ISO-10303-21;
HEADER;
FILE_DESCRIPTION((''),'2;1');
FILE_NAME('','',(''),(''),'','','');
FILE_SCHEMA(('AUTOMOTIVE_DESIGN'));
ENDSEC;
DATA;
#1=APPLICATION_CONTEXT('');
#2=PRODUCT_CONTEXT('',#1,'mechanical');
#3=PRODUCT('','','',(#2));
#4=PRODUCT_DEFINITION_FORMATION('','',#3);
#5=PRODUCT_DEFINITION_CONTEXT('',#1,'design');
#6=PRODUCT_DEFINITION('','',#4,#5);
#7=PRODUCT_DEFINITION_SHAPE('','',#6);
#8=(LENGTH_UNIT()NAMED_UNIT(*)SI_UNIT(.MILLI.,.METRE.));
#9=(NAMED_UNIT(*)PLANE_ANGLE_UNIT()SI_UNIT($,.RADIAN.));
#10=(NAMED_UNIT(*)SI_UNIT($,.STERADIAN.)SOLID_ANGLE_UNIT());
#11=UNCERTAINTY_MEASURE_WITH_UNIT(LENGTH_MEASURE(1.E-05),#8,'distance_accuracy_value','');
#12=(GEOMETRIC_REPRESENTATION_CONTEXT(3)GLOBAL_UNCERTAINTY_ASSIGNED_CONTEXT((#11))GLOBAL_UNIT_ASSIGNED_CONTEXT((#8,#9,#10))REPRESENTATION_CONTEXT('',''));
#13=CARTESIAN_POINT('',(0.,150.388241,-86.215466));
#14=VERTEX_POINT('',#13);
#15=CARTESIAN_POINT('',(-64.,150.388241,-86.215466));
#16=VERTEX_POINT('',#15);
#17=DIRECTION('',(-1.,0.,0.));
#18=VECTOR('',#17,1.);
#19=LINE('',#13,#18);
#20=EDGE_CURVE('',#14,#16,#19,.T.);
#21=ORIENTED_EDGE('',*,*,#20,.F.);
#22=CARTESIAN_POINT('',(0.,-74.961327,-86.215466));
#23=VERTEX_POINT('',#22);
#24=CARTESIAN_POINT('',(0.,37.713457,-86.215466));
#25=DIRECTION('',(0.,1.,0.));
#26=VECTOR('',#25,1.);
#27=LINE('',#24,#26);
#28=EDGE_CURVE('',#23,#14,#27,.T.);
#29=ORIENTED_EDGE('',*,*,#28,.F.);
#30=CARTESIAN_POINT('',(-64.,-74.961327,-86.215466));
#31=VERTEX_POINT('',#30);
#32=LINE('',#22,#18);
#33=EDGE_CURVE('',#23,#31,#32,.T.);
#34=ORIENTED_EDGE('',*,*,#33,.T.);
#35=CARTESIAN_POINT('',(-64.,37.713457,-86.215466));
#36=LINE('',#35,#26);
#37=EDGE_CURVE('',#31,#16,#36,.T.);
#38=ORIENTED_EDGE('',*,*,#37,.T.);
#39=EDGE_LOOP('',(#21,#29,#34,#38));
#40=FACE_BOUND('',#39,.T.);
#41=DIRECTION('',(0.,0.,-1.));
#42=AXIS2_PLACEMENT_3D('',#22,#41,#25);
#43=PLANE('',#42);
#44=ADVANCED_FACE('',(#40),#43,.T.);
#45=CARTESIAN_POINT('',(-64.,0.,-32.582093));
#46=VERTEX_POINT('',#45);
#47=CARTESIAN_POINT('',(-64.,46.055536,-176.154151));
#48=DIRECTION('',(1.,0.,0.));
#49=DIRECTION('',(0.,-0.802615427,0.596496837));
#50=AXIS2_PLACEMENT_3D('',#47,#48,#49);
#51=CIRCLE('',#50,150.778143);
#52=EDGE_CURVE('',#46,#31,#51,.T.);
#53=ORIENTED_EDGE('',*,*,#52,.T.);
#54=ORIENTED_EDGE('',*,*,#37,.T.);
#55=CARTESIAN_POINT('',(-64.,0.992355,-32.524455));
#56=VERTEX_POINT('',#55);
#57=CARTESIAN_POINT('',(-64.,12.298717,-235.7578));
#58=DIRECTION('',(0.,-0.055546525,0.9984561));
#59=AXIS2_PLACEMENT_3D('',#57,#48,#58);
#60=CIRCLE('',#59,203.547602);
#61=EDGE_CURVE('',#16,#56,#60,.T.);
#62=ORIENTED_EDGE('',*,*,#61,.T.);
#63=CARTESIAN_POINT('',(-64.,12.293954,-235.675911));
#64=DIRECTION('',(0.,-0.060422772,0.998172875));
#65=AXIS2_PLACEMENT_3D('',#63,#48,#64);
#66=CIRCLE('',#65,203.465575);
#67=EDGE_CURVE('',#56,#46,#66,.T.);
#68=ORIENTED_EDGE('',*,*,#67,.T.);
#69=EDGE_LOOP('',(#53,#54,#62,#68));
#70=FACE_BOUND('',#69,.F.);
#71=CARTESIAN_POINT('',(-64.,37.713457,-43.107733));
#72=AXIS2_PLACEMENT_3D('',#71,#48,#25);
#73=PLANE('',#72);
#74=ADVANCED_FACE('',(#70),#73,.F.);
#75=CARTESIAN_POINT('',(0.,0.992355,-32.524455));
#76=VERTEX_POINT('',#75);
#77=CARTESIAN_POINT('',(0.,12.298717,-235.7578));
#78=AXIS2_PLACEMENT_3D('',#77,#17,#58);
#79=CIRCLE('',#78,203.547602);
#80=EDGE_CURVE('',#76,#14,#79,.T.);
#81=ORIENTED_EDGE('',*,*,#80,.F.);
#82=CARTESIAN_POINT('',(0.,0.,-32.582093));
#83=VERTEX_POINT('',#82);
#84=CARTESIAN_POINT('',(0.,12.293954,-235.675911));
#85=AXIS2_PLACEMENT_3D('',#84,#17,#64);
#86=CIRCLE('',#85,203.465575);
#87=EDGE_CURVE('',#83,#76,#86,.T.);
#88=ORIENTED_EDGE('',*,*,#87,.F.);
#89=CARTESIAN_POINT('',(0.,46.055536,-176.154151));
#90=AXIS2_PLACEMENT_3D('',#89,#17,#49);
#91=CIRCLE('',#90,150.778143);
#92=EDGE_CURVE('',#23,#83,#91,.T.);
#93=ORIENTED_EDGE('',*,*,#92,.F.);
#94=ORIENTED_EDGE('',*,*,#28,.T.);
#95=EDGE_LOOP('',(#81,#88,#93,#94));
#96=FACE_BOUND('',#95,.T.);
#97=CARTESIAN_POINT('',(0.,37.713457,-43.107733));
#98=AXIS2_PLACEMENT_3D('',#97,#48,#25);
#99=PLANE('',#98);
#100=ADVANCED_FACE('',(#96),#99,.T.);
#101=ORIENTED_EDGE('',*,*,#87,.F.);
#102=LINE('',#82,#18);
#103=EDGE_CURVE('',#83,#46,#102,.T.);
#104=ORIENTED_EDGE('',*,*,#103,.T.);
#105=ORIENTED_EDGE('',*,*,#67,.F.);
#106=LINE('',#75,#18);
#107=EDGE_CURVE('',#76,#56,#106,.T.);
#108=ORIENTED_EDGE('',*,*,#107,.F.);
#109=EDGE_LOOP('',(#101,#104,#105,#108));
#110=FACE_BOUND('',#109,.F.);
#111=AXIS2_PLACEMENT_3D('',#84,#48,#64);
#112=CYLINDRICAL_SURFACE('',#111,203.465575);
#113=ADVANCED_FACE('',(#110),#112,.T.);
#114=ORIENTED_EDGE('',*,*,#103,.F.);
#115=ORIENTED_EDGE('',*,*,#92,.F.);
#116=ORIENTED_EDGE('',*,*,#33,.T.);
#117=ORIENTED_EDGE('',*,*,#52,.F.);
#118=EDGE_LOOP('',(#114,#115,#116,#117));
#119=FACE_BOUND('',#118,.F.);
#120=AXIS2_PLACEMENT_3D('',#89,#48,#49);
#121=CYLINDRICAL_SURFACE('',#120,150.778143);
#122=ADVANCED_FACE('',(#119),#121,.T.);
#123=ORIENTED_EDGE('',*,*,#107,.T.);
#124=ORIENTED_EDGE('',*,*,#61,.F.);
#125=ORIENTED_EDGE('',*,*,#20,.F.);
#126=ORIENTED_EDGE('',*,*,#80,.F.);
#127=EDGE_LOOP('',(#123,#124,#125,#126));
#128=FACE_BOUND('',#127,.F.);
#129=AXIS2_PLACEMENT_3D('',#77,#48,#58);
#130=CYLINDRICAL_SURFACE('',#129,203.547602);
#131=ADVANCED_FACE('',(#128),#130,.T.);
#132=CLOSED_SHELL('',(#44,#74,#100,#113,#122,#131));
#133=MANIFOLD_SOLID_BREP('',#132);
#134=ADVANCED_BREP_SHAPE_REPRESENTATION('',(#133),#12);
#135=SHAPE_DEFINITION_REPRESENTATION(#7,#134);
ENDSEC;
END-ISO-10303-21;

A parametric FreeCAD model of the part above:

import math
import FreeCAD as App
import Part
import Sketcher
from FreeCAD import Vector
Q = App.Units.Quantity

doc = App.newDocument("Part")
body = doc.addObject("PartDesign::Body", "Body")

sketch1 = body.newObject("Sketcher::SketchObject", "Sketch")
sketch1.AttachmentSupport = (doc.getObject("YZ_Plane"), [""])
sketch1.MapMode = "FlatFace"
sketch1.addGeometry([
    Part.LineSegment(Vector(-74.961327, 0, 0), Vector(-74.961327, -86.215466, 0)),
    Part.LineSegment(Vector(-74.961327, -86.215466, 0), Vector(150.388241, -86.215466, 0)),
    Part.LineSegment(Vector(150.388241, -86.215466, 0), Vector(150.388241, 0, 0)),
    Part.LineSegment(Vector(150.388241, 0, 0), Vector(-74.961327, 0, 0)),
], False)
sketch1.addConstraint([
    Sketcher.Constraint("Coincident", 0, 2, 1, 1),
    Sketcher.Constraint("Coincident", 1, 2, 2, 1),
    Sketcher.Constraint("Coincident", 2, 2, 3, 1),
    Sketcher.Constraint("Coincident", 3, 2, 0, 1),
    Sketcher.Constraint("Vertical", 0),
    Sketcher.Constraint("Horizontal", 1),
    Sketcher.Constraint("Vertical", 2),
    Sketcher.Constraint("Horizontal", 3),
    Sketcher.Constraint("PointOnObject", 2, 2, -1),
    Sketcher.Constraint("DistanceX", 1, 1, 1, 2, Q("225.349568 mm")),
    Sketcher.Constraint("DistanceY", 0, 2, 0, 1, Q("86.215466 mm")),
    Sketcher.Constraint("DistanceX", -1, 1, 1, 2, Q("150.388241 mm")),
])
pad1 = body.newObject("PartDesign::Pad", "Pad")
pad1.Profile = sketch1
pad1.Length = 64
pad1.Reversed = True

sketch2 = body.newObject("Sketcher::SketchObject", "Sketch001")
sketch2.AttachmentSupport = (doc.getObject("YZ_Plane"), [""])
sketch2.MapMode = "FlatFace"
sketch2.addGeometry([
    Part.ArcOfCircle(Part.Circle(Vector(12.298717, -235.7578, 0), Vector(0, 0, 1), 203.547602), math.radians(47.280176), math.radians(93.18422)),
    Part.LineSegment(Vector(150.388241, -86.215466, 0), Vector(150.388241, 0, 0)),
    Part.LineSegment(Vector(150.388241, 0, 0), Vector(-74.961327, 0, 0)),
    Part.LineSegment(Vector(-74.961327, 0, 0), Vector(-74.961327, -86.215466, 0)),
    Part.ArcOfCircle(Part.Circle(Vector(46.055536, -176.154151, 0), Vector(0, 0, 1), 150.778143), math.radians(107.78538), math.radians(143.380588)),
    Part.ArcOfCircle(Part.Circle(Vector(12.293954, -235.675911, 0), Vector(0, 0, 1), 203.465575), math.radians(93.184162), math.radians(93.46408)),
], False)
sketch2.addConstraint([
    Sketcher.Constraint("Coincident", 0, 1, 1, 1),
    Sketcher.Constraint("Coincident", 1, 2, 2, 1),
    Sketcher.Constraint("Coincident", 2, 2, 3, 1),
    Sketcher.Constraint("Coincident", 3, 2, 4, 2),
    Sketcher.Constraint("Coincident", 4, 1, 5, 2),
    Sketcher.Constraint("Coincident", 5, 1, 0, 2),
    Sketcher.Constraint("Vertical", 1),
    Sketcher.Constraint("Horizontal", 2),
    Sketcher.Constraint("Vertical", 3),
    Sketcher.Constraint("PointOnObject", 1, 2, -1),
    Sketcher.Constraint("PointOnObject", 4, 1, -2),
    Sketcher.Constraint("Radius", 0, Q("203.547602 mm")),
    Sketcher.Constraint("Radius", 4, Q("150.778143 mm")),
    Sketcher.Constraint("Radius", 5, Q("203.465575 mm")),
    Sketcher.Constraint("DistanceY", 0, 3, -1, 1, Q("235.7578 mm")),
    Sketcher.Constraint("DistanceX", 2, 2, 2, 1, Q("225.349568 mm")),
    Sketcher.Constraint("DistanceY", 1, 1, 1, 2, Q("86.215466 mm")),
    Sketcher.Constraint("DistanceY", 3, 2, 3, 1, Q("86.215466 mm")),
    Sketcher.Constraint("DistanceY", 4, 3, -1, 1, Q("176.154151 mm")),
    Sketcher.Constraint("DistanceY", 5, 3, -1, 1, Q("235.675911 mm")),
    Sketcher.Constraint("DistanceY", 4, 1, 5, 1, Q("0.057638 mm")),
])
pocket1 = body.newObject("PartDesign::Pocket", "Pocket")
pocket1.Profile = sketch2
pocket1.Type = "ThroughAll"

doc.recompute()
